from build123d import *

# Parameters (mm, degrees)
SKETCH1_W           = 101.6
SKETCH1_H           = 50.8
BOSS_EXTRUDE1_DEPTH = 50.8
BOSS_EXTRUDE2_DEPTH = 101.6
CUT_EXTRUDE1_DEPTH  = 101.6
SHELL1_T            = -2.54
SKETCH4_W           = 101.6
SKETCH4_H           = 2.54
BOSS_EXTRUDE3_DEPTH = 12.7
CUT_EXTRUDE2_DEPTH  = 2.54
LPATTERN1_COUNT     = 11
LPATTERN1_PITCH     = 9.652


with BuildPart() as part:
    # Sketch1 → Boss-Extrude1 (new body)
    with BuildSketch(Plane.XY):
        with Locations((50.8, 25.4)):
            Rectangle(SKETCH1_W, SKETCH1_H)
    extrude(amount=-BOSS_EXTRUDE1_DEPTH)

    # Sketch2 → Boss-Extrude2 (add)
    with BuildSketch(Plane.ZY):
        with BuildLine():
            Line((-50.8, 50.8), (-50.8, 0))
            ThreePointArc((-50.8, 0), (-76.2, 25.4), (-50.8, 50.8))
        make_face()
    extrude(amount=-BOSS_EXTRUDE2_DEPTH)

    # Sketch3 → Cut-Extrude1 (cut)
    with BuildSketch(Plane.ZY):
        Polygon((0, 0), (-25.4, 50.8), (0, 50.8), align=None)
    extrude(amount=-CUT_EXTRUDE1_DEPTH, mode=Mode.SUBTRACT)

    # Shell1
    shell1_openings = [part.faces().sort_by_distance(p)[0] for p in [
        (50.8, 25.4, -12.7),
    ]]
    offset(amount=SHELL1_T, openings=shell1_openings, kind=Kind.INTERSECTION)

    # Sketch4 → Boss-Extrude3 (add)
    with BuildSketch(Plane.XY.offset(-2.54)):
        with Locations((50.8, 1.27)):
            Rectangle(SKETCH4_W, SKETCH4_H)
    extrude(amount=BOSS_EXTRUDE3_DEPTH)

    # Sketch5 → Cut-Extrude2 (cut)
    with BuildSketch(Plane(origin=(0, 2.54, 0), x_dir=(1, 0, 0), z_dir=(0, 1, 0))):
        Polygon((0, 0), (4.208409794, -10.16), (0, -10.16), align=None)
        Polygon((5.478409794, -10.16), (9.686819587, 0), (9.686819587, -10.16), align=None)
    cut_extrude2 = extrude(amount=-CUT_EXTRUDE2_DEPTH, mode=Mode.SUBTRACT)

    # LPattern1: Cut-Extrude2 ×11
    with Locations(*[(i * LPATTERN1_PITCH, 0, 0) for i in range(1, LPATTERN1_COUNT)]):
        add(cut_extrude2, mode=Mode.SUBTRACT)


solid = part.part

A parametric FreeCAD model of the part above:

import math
import FreeCAD as App
import Part
import Sketcher
from FreeCAD import Vector
Q = App.Units.Quantity


def faces_at(feature, points):
    """Names of the faces that lie closest to the given points."""
    faces = feature.Shape.Faces
    near = lambda p: min(range(len(faces)), key=lambda i: faces[i].distToShape(Part.Vertex(*p))[0])
    return sorted({f"Face{near(p) + 1}" for p in points})


def add_polygon(sketch, points):
    """Adds a closed chain of lines whose ends are joined by coincident constraints."""
    first, n = sketch.GeometryCount, len(points)
    for a, b in zip(points, points[1:] + points[:1]):
        sketch.addGeometry(Part.LineSegment(App.Vector(*a, 0), App.Vector(*b, 0)), False)
    for i in range(n):
        sketch.addConstraint(Sketcher.Constraint("Coincident", first + i, 2, first + (i + 1) % n, 1))

doc = App.newDocument("Part")
body = doc.addObject("PartDesign::Body", "Body")

# Sketch on XY plane
sketch1 = body.newObject("Sketcher::SketchObject", "Sketch")
sketch1.AttachmentSupport = (doc.getObject("XY_Plane"), [""])
sketch1.MapMode = "FlatFace"
add_polygon(sketch1, [(0, 50.8), (0, 0), (101.6, 0), (101.6, 50.8)])  # lines 0-3
sketch1.addConstraint([
    Sketcher.Constraint("Vertical", 0),
    Sketcher.Constraint("Horizontal", 1),
    Sketcher.Constraint("Vertical", 2),
    Sketcher.Constraint("Horizontal", 3),
    Sketcher.Constraint("Coincident", 0, 2, -1, 1),
    Sketcher.Constraint("DistanceX", 1, 1, 1, 2, Q("4 in")),
    Sketcher.Constraint("DistanceY", 0, 2, 0, 1, Q("2 in")),
])
pad1 = body.newObject("PartDesign::Pad", "Pad")
pad1.Profile = sketch1
pad1.Length = Q("2 in")
pad1.Reversed = True

# Sketch on YZ plane
sketch2 = body.newObject("Sketcher::SketchObject", "Sketch001")
sketch2.AttachmentSupport = (doc.getObject("YZ_Plane"), [""])
sketch2.MapMode = "FlatFace"
sketch2.addGeometry([
    Part.LineSegment(Vector(0, -50.8, 0), Vector(50.8, -50.8, 0)),
    Part.ArcOfCircle(Part.Circle(Vector(25.4, -50.8, 0), Vector(0, 0, 1), 25.4), math.radians(180), math.radians(360)),
], False)
sketch2.addConstraint([
    Sketcher.Constraint("Coincident", 0, 1, 1, 1),
    Sketcher.Constraint("Coincident", 1, 2, 0, 2),
    Sketcher.Constraint("Horizontal", 0),
    Sketcher.Constraint("PointOnObject", 0, 1, -2),
    Sketcher.Constraint("Horizontal", 1, 3, 0, 1),
    Sketcher.Constraint("Radius", 1, Q("1 in")),
    Sketcher.Constraint("DistanceY", 1, 3, -1, 1, Q("2 in")),
])
pad2 = body.newObject("PartDesign::Pad", "Pad001")
pad2.Profile = sketch2
pad2.Length = Q("4 in")

# Sketch on YZ plane
sketch3 = body.newObject("Sketcher::SketchObject", "Sketch002")
sketch3.AttachmentSupport = (doc.getObject("YZ_Plane"), [""])
sketch3.MapMode = "FlatFace"
add_polygon(sketch3, [(50.8, -25.4), (0, 0), (50.8, 0)])  # lines 0-2
sketch3.addConstraint([
    Sketcher.Constraint("Horizontal", 1),
    Sketcher.Constraint("Vertical", 2),
    Sketcher.Constraint("Coincident", 0, 2, -1, 1),
    Sketcher.Constraint("DistanceX", 1, 1, 1, 2, Q("2 in")),
    Sketcher.Constraint("DistanceY", 2, 2, 2, 1, Q("1 in")),
])
pocket1 = body.newObject("PartDesign::Pocket", "Pocket")
pocket1.Profile = sketch3
pocket1.Length = Q("4 in")
pocket1.Reversed = True
doc.recompute()

thickness = body.newObject("PartDesign::Thickness", "Thickness")
thickness.Base = (pocket1, faces_at(pocket1, [(50.8, 25.4, -12.7)]))
thickness.Value = Q("0.1 in")
thickness.Reversed = True
thickness.Join = "Intersection"

# Sketch on XY plane
sketch4 = body.newObject("Sketcher::SketchObject", "Sketch003")
sketch4.AttachmentSupport = (doc.getObject("XY_Plane"), [""])
sketch4.MapMode = "FlatFace"
sketch4.AttachmentOffset = App.Placement(Vector(0, 0, -0.1 * 25.4), App.Rotation())
add_polygon(sketch4, [(0, 2.54), (0, 0), (101.6, 0), (101.6, 2.54)])  # lines 0-3
sketch4.addConstraint([
    Sketcher.Constraint("Vertical", 0),
    Sketcher.Constraint("Horizontal", 1),
    Sketcher.Constraint("Vertical", 2),
    Sketcher.Constraint("Horizontal", 3),
    Sketcher.Constraint("Coincident", 0, 2, -1, 1),
    Sketcher.Constraint("DistanceX", 1, 1, 1, 2, Q("4 in")),
    Sketcher.Constraint("DistanceY", 0, 2, 0, 1, Q("0.1 in")),
])
pad3 = body.newObject("PartDesign::Pad", "Pad002")
pad3.Profile = sketch4
pad3.Length = Q("0.5 in")

# Sketch on XZ plane
sketch5 = body.newObject("Sketcher::SketchObject", "Sketch004")
sketch5.AttachmentSupport = (doc.getObject("XZ_Plane"), [""])
sketch5.MapMode = "FlatFace"
sketch5.AttachmentOffset = App.Placement(Vector(0, 0, -0.1 * 25.4), App.Rotation())
add_polygon(sketch5, [(4.20841, 10.16), (0, 0), (0, 10.16)])  # lines 0-2
add_polygon(sketch5, [(9.68682, 0), (5.47841, 10.16), (9.68682, 10.16)])  # lines 3-5
sketch5.addConstraint([
    Sketcher.Constraint("Vertical", 1),
    Sketcher.Constraint("Horizontal", 2),
    Sketcher.Constraint("Horizontal", 4),
    Sketcher.Constraint("Vertical", 5),
    Sketcher.Constraint("Coincident", 0, 2, -1, 1),
    Sketcher.Constraint("PointOnObject", 5, 2, -1),
    Sketcher.Constraint("Horizontal", 2, 2, 3, 2),
    Sketcher.Constraint("Equal", 2, 4),
    Sketcher.Constraint("DistanceY", 1, 1, 1, 2, Q("0.4 in")),
    Sketcher.Constraint("Angle", 0, Q("-112.5 deg")),
    Sketcher.Constraint("DistanceX", 2, 2, 3, 2, Q("0.05 in")),
])
pocket2 = body.newObject("PartDesign::Pocket", "Pocket001")
pocket2.Profile = sketch5
pocket2.Length = Q("0.1 in")
pocket2.Reversed = True
doc.recompute()

linearpattern = body.newObject("PartDesign::LinearPattern", "LinearPattern")
linearpattern.Originals = [pocket2]
linearpattern.Direction = (doc.getObject("X_Axis"), [""])
linearpattern.Mode = "offset"
linearpattern.Offset = Q("0.38 in")
linearpattern.Occurrences = 11
body.Tip = linearpattern

doc.recompute()
